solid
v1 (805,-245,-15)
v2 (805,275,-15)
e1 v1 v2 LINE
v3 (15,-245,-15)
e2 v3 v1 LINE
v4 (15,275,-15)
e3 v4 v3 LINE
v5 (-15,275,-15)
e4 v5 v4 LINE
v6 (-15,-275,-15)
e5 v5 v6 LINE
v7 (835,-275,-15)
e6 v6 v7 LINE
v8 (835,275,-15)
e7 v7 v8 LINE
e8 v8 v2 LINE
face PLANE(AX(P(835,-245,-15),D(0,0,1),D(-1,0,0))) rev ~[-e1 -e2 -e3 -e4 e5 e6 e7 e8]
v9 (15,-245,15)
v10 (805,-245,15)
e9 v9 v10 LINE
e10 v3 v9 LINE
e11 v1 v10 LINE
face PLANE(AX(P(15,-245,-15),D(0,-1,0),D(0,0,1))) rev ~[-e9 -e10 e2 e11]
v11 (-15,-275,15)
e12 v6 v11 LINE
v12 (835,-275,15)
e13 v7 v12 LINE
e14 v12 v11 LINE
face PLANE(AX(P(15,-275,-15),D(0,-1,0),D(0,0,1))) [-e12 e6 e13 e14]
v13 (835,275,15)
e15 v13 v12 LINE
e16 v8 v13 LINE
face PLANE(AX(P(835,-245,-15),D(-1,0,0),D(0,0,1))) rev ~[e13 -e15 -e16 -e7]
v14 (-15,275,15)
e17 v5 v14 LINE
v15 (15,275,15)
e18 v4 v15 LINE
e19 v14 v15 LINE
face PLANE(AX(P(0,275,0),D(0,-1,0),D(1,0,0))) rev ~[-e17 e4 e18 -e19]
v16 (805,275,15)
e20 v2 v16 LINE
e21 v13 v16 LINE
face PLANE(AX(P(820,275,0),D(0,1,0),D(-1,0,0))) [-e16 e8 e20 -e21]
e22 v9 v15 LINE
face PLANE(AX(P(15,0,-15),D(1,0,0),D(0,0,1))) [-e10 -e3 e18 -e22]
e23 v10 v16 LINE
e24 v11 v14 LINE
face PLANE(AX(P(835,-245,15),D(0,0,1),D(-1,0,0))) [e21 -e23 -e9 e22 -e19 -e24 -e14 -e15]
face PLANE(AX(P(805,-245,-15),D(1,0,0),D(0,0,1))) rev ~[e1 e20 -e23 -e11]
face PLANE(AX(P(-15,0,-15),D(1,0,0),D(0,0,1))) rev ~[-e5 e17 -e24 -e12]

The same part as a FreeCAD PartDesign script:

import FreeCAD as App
import Part
import Sketcher
from FreeCAD import Vector


def add_polygon(sketch, points):
    """Adds a closed chain of lines whose ends are joined by coincident constraints."""
    first, n = sketch.GeometryCount, len(points)
    for a, b in zip(points, points[1:] + points[:1]):
        sketch.addGeometry(Part.LineSegment(App.Vector(*a, 0), App.Vector(*b, 0)), False)
    for i in range(n):
        sketch.addConstraint(Sketcher.Constraint("Coincident", first + i, 2, first + (i + 1) % n, 1))

doc = App.newDocument("Part")
body = doc.addObject("PartDesign::Body", "Body")

# Sketch on XZ plane
sketch1 = body.newObject("Sketcher::SketchObject", "Sketch")
sketch1.AttachmentSupport = (doc.getObject("XZ_Plane"), [""])
sketch1.MapMode = "FlatFace"
add_polygon(sketch1, [(-15, 15), (-15, -15), (15, -15), (15, 15)])  # lines 0-3
sketch1.addConstraint(Sketcher.Constraint("Vertical", 0))
sketch1.addConstraint(Sketcher.Constraint("Horizontal", 1))
sketch1.addConstraint(Sketcher.Constraint("Vertical", 2))
sketch1.addConstraint(Sketcher.Constraint("Horizontal", 3))
sketch1.addConstraint(Sketcher.Constraint("Symmetric", 0, 2, 2, 2, -1, 1))
sketch1.addConstraint(Sketcher.Constraint("Equal", 3, 0))
sketch1.addConstraint(Sketcher.Constraint("DistanceX", 1, 1, 1, 2, 30.0))
pad1 = body.newObject("PartDesign::Pad", "Pad")
pad1.Profile = sketch1
pad1.Length = 550
pad1.Midplane = True

# Sketch on YZ plane
sketch2 = body.newObject("Sketcher::SketchObject", "Sketch001")
sketch2.AttachmentSupport = (doc.getObject("YZ_Plane"), [""])
sketch2.MapMode = "FlatFace"
sketch2.AttachmentOffset = App.Placement(Vector(0, 0, 15), App.Rotation())
add_polygon(sketch2, [(-275, 15), (-275, -15), (-245, -15), (-245, 15)])  # lines 0-3
sketch2.addConstraint(Sketcher.Constraint("Vertical", 0))
sketch2.addConstraint(Sketcher.Constraint("Horizontal", 1))
sketch2.addConstraint(Sketcher.Constraint("Vertical", 2))
sketch2.addConstraint(Sketcher.Constraint("Horizontal", 3))
sketch2.addConstraint(Sketcher.Constraint("Equal", 3, 0))
sketch2.addConstraint(Sketcher.Constraint("DistanceX", 1, 1, 1, 2, 30.0))
sketch2.addConstraint(Sketcher.Constraint("DistanceX", 0, 2, -1, 1, 275.0))
sketch2.addConstraint(Sketcher.Constraint("DistanceY", 0, 2, -1, 1, 15.0))
pad2 = body.newObject("PartDesign::Pad", "Pad001")
pad2.Profile = sketch2
pad2.Length = 820

# Sketch on XZ plane
sketch3 = body.newObject("Sketcher::SketchObject", "Sketch002")
sketch3.AttachmentSupport = (doc.getObject("XZ_Plane"), [""])
sketch3.MapMode = "FlatFace"
sketch3.AttachmentOffset = App.Placement(Vector(0, 0, 245), App.Rotation())
add_polygon(sketch3, [(835, 15), (835, -15), (805, -15), (805, 15)])  # lines 0-3
sketch3.addConstraint(Sketcher.Constraint("Vertical", 0))
sketch3.addConstraint(Sketcher.Constraint("Horizontal", 1))
sketch3.addConstraint(Sketcher.Constraint("Vertical", 2))
sketch3.addConstraint(Sketcher.Constraint("Horizontal", 3))
sketch3.addConstraint(Sketcher.Constraint("Equal", 3, 0))
sketch3.addConstraint(Sketcher.Constraint("DistanceX", 1, 2, 1, 1, 30.0))
sketch3.addConstraint(Sketcher.Constraint("DistanceX", -1, 1, 0, 2, 835.0))
sketch3.addConstraint(Sketcher.Constraint("DistanceY", 0, 2, -1, 1, 15.0))
pad3 = body.newObject("PartDesign::Pad", "Pad002")
pad3.Profile = sketch3
pad3.Type = "TwoLengths"
pad3.Length = 520
pad3.Length2 = 25
pad3.Reversed = True

doc.recompute()
